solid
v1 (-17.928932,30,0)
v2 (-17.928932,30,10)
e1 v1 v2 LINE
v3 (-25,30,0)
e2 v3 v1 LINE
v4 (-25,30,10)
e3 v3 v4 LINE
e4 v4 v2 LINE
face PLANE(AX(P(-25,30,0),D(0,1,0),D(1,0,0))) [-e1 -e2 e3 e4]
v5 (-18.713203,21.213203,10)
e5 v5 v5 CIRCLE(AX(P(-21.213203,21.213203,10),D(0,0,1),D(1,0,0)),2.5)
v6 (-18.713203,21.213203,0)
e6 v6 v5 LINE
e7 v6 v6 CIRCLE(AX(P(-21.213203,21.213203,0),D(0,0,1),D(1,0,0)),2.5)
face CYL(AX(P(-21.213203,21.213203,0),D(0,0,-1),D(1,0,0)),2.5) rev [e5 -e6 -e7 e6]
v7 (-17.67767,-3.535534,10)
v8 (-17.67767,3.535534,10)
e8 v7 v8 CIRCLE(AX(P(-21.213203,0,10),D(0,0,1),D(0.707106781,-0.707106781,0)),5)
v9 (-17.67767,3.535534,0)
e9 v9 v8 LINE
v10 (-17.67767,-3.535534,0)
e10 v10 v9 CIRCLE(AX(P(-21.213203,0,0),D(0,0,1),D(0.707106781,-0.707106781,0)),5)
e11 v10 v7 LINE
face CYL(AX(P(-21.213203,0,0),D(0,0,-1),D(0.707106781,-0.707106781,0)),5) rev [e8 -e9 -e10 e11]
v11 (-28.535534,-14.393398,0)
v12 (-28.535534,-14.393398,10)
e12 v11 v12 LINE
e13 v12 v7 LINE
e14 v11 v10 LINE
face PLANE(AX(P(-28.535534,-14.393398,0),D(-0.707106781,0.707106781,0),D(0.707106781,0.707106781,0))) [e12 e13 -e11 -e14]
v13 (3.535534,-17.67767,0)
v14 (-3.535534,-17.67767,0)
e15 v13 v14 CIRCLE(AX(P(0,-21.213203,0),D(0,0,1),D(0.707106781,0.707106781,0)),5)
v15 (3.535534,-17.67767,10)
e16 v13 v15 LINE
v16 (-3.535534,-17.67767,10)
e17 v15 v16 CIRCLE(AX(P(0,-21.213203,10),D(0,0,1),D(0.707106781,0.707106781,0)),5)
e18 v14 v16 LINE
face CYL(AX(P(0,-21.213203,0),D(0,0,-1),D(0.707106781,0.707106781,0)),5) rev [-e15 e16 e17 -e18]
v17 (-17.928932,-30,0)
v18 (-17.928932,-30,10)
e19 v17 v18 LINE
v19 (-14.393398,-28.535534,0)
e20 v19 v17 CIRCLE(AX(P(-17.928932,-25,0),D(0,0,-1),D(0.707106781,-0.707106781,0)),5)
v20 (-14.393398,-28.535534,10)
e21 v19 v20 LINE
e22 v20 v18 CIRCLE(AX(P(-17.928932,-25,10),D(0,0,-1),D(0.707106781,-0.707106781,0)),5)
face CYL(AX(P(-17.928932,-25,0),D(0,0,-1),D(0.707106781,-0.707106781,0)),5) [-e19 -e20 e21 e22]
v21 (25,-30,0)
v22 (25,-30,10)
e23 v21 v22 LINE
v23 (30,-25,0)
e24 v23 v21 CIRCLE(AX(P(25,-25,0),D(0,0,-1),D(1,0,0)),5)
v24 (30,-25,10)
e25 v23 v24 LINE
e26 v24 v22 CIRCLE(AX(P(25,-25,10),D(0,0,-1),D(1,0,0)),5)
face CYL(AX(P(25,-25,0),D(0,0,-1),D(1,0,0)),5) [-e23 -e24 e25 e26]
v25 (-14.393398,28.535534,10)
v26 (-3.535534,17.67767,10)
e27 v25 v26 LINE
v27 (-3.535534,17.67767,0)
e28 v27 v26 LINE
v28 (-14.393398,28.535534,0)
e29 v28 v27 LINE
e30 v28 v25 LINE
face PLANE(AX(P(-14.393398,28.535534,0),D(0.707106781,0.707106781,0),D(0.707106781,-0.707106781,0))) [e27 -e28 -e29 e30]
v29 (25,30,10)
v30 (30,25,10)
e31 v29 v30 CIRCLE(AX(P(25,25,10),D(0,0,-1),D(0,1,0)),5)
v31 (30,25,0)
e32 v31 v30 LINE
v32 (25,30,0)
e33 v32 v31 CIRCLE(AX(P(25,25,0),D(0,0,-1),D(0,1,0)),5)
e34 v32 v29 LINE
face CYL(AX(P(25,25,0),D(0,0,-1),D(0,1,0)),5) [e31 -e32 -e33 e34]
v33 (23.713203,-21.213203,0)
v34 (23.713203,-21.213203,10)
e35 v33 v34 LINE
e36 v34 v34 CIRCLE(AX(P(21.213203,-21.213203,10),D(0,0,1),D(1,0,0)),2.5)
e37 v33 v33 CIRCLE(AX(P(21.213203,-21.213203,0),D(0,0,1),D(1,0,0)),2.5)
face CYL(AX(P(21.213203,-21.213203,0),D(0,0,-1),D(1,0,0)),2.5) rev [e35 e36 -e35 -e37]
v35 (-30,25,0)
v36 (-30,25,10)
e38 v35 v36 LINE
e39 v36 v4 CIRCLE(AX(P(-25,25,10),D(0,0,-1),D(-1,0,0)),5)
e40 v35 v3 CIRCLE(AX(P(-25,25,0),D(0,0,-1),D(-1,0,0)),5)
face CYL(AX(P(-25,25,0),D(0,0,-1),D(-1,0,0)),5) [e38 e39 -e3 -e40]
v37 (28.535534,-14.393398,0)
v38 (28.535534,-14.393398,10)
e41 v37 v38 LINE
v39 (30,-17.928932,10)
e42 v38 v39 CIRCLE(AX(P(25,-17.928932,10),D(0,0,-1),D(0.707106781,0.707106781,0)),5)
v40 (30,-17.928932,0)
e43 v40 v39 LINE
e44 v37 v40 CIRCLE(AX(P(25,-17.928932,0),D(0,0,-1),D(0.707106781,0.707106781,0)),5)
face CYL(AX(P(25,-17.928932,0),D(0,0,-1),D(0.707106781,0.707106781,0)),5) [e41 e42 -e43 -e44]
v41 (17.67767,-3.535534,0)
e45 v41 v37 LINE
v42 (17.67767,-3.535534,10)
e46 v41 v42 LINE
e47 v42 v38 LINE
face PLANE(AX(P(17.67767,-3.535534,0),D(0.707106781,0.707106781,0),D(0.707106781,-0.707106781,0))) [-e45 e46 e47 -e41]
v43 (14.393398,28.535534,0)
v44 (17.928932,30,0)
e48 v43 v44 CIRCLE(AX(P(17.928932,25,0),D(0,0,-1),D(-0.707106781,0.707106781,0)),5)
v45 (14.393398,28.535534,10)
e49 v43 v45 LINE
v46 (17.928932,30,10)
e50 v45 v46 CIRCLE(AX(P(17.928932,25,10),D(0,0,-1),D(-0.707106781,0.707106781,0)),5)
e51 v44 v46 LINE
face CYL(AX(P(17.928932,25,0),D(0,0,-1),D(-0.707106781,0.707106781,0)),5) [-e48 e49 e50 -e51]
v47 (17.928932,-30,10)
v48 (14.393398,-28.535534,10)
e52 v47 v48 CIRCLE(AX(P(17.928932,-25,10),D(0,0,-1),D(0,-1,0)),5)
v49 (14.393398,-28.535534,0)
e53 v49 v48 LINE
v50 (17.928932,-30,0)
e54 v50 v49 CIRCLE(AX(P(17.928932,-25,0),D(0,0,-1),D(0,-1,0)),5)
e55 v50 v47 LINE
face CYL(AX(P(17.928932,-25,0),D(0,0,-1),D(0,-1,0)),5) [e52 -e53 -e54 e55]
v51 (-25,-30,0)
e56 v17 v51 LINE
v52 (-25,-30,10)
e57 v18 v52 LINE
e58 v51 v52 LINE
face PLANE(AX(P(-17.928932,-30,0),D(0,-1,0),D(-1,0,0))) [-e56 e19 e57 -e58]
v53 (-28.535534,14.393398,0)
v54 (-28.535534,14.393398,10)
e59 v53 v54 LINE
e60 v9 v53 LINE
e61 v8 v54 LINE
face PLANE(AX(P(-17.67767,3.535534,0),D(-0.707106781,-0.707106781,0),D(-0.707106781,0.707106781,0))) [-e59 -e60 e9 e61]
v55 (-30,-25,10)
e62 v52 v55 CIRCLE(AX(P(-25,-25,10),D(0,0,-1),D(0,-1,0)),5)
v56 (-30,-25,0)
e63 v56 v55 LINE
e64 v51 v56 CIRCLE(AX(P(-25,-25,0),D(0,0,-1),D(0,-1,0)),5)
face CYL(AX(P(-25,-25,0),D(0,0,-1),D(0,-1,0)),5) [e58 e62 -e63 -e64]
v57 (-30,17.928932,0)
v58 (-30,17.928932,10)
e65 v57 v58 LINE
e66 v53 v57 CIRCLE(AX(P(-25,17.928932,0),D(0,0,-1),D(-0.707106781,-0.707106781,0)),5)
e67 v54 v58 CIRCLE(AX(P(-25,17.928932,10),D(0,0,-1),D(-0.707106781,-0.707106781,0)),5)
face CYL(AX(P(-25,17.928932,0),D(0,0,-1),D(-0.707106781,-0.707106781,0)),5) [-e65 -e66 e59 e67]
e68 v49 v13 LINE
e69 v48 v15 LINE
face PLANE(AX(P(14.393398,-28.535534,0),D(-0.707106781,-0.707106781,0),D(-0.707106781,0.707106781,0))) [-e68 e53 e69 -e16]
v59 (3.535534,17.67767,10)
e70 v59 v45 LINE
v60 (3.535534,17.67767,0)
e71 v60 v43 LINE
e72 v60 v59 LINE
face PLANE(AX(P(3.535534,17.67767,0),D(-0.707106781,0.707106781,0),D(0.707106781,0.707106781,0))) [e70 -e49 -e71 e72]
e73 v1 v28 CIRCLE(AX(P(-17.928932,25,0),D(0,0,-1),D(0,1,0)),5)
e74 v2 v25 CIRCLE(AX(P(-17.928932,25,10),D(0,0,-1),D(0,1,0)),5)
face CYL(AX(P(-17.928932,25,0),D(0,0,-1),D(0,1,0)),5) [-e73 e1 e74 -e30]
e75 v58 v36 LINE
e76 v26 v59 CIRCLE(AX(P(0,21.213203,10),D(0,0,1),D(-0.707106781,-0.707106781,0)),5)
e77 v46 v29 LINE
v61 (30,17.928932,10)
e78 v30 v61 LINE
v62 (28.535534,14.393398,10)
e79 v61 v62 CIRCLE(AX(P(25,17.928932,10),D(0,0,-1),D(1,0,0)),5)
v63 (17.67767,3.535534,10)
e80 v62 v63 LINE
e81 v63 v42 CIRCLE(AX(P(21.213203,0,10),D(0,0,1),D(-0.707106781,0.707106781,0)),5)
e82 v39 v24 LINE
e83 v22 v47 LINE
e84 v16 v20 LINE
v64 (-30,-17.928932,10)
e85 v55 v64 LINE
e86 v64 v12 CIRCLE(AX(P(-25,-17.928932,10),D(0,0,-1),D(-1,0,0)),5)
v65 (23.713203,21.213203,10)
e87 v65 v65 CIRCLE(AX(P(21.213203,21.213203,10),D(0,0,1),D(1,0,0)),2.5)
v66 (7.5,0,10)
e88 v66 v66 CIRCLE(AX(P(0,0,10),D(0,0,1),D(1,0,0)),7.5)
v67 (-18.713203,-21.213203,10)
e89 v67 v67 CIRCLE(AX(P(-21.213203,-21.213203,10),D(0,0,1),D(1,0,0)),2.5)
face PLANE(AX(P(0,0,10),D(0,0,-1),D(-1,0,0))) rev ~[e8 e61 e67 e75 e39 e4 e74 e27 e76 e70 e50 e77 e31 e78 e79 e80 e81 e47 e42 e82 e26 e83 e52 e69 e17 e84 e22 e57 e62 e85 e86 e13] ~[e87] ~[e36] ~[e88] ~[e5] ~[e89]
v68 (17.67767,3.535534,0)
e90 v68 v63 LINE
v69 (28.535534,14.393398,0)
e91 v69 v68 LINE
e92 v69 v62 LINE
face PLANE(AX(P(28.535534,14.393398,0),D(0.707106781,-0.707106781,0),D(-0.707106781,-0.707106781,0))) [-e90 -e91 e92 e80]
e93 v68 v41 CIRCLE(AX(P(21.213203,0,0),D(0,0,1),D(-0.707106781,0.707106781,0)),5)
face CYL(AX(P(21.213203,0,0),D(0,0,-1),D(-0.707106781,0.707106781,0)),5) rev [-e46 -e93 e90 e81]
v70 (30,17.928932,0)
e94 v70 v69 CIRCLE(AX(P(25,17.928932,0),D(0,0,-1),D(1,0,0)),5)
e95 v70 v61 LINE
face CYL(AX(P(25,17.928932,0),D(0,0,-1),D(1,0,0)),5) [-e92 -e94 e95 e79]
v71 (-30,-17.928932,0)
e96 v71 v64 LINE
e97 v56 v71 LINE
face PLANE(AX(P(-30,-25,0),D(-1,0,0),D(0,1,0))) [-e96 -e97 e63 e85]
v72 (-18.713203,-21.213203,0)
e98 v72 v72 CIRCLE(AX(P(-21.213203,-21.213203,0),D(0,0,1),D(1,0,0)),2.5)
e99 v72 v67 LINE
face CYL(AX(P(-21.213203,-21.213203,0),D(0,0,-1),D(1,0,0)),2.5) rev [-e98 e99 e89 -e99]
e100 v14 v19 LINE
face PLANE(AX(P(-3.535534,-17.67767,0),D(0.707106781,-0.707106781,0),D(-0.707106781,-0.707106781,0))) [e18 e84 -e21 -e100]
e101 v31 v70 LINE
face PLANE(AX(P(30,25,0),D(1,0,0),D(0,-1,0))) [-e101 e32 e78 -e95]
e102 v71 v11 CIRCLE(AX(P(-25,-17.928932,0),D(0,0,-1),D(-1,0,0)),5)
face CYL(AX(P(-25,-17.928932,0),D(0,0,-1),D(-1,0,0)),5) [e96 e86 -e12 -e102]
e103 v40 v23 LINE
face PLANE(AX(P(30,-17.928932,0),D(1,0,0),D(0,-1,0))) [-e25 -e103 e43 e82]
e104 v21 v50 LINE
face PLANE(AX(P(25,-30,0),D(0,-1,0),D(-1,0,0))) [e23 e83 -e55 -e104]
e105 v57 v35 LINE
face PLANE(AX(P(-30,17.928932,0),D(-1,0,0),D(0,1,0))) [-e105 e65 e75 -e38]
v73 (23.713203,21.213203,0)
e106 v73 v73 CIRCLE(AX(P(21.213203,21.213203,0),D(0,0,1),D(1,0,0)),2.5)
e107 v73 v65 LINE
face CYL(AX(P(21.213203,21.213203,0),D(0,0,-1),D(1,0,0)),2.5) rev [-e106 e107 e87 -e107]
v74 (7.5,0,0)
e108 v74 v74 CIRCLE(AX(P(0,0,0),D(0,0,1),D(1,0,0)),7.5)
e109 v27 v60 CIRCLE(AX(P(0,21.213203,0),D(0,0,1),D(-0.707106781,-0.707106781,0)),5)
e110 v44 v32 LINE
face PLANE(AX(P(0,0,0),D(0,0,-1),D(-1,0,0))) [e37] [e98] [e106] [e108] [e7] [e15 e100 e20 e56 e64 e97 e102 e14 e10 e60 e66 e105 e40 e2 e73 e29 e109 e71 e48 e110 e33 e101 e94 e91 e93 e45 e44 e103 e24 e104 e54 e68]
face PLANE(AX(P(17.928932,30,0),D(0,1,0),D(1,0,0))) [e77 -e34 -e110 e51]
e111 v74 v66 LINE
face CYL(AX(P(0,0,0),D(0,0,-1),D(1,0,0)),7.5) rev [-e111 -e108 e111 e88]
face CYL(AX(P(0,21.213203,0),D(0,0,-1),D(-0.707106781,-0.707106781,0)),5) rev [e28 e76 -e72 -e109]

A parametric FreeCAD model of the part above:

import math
import FreeCAD as App
import Part
import Sketcher

V = App.Vector

doc = App.newDocument("Part")
body = doc.addObject("PartDesign::Body", "Body")

sketch1 = body.newObject("Sketcher::SketchObject", "Sketch")
sketch1.AttachmentSupport = (doc.getObject("XY_Plane"), [""])
sketch1.MapMode = "FlatFace"
sketch1.addGeometry([
    Part.LineSegment(V(25, 30, 0), V(17.9, 30, 0)),
    Part.ArcOfCircle(Part.Circle(V(17.9, 25, 0), V(0, 0, 1), 5), math.radians(90), math.radians(135)),
    Part.LineSegment(V(14.4, 28.5, 0), V(3.5, 17.7, 0)),
    Part.ArcOfCircle(Part.Circle(V(0, 21.2, 0), V(0, 0, 1), 5), math.radians(-135), math.radians(-45)),
    Part.LineSegment(V(-3.5, 17.7, 0), V(-14.4, 28.5, 0)),
    Part.ArcOfCircle(Part.Circle(V(-17.9, 25, 0), V(0, 0, 1), 5), math.radians(45), math.radians(90)),
    Part.LineSegment(V(-17.9, 30, 0), V(-25, 30, 0)),
    Part.ArcOfCircle(Part.Circle(V(-25, 25, 0), V(0, 0, 1), 5), math.radians(90), math.radians(180)),
    Part.LineSegment(V(-30, 25, 0), V(-30, 17.9, 0)),
    Part.ArcOfCircle(Part.Circle(V(-25, 17.9, 0), V(0, 0, 1), 5), math.radians(180), math.radians(225)),
    Part.LineSegment(V(-28.5, 14.4, 0), V(-17.7, 3.5, 0)),
    Part.ArcOfCircle(Part.Circle(V(-21.2, 0, 0), V(0, 0, 1), 5), math.radians(-45), math.radians(45)),
    Part.LineSegment(V(-17.7, -3.5, 0), V(-28.5, -14.4, 0)),
    Part.ArcOfCircle(Part.Circle(V(-25, -17.9, 0), V(0, 0, 1), 5), math.radians(135), math.radians(180)),
    Part.LineSegment(V(-30, -17.9, 0), V(-30, -25, 0)),
    Part.ArcOfCircle(Part.Circle(V(-25, -25, 0), V(0, 0, 1), 5), math.radians(180), math.radians(270)),
    Part.LineSegment(V(-25, -30, 0), V(-17.9, -30, 0)),
    Part.ArcOfCircle(Part.Circle(V(-17.9, -25, 0), V(0, 0, 1), 5), math.radians(-90), math.radians(-45)),
    Part.LineSegment(V(-14.4, -28.5, 0), V(-3.5, -17.7, 0)),
    Part.ArcOfCircle(Part.Circle(V(0, -21.2, 0), V(0, 0, 1), 5), math.radians(45), math.radians(135)),
    Part.LineSegment(V(3.5, -17.7, 0), V(14.4, -28.5, 0)),
    Part.ArcOfCircle(Part.Circle(V(17.9, -25, 0), V(0, 0, 1), 5), math.radians(-135), math.radians(-90)),
    Part.LineSegment(V(17.9, -30, 0), V(25, -30, 0)),
    Part.ArcOfCircle(Part.Circle(V(25, -25, 0), V(0, 0, 1), 5), math.radians(-90), math.radians(0)),
    Part.LineSegment(V(30, -25, 0), V(30, -17.9, 0)),
    Part.ArcOfCircle(Part.Circle(V(25, -17.9, 0), V(0, 0, 1), 5), math.radians(0), math.radians(45)),
    Part.LineSegment(V(28.5, -14.4, 0), V(17.7, -3.5, 0)),
    Part.ArcOfCircle(Part.Circle(V(21.2, 0, 0), V(0, 0, 1), 5), math.radians(135), math.radians(225)),
    Part.LineSegment(V(17.7, 3.5, 0), V(28.5, 14.4, 0)),
    Part.ArcOfCircle(Part.Circle(V(25, 17.9, 0), V(0, 0, 1), 5), math.radians(-45), math.radians(0)),
    Part.LineSegment(V(30, 17.9, 0), V(30, 25, 0)),
    Part.ArcOfCircle(Part.Circle(V(25, 25, 0), V(0, 0, 1), 5), math.radians(0), math.radians(90)),
    Part.Circle(V(21.2, -21.2, 0), V(0, 0, 1), 2.5),
    Part.Circle(V(-21.2, -21.2, 0), V(0, 0, 1), 2.5),
    Part.Circle(V(21.2, 21.2, 0), V(0, 0, 1), 2.5),
    Part.Circle(V(0, 0, 0), V(0, 0, 1), 7.5),
    Part.Circle(V(-21.2, 21.2, 0), V(0, 0, 1), 2.5),
], False)
sketch1.addConstraint([
    Sketcher.Constraint("Tangent", 0, 2, 1, 1),
    Sketcher.Constraint("Tangent", 1, 2, 2, 1),
    Sketcher.Constraint("Tangent", 2, 2, 3, 2),
    Sketcher.Constraint("Tangent", 3, 1, 4, 1),
    Sketcher.Constraint("Tangent", 4, 2, 5, 1),
    Sketcher.Constraint("Tangent", 5, 2, 6, 1),
    Sketcher.Constraint("Tangent", 6, 2, 7, 1),
    Sketcher.Constraint("Tangent", 7, 2, 8, 1),
    Sketcher.Constraint("Tangent", 8, 2, 9, 1),
    Sketcher.Constraint("Tangent", 9, 2, 10, 1),
    Sketcher.Constraint("Tangent", 10, 2, 11, 2),
    Sketcher.Constraint("Tangent", 11, 1, 12, 1),
    Sketcher.Constraint("Tangent", 12, 2, 13, 1),
    Sketcher.Constraint("Tangent", 13, 2, 14, 1),
    Sketcher.Constraint("Tangent", 14, 2, 15, 1),
    Sketcher.Constraint("Tangent", 15, 2, 16, 1),
    Sketcher.Constraint("Tangent", 16, 2, 17, 1),
    Sketcher.Constraint("Tangent", 17, 2, 18, 1),
    Sketcher.Constraint("Tangent", 18, 2, 19, 2),
    Sketcher.Constraint("Tangent", 19, 1, 20, 1),
    Sketcher.Constraint("Tangent", 20, 2, 21, 1),
    Sketcher.Constraint("Tangent", 21, 2, 22, 1),
    Sketcher.Constraint("Tangent", 22, 2, 23, 1),
    Sketcher.Constraint("Tangent", 23, 2, 24, 1),
    Sketcher.Constraint("Tangent", 24, 2, 25, 1),
    Sketcher.Constraint("Tangent", 25, 2, 26, 1),
    Sketcher.Constraint("Tangent", 26, 2, 27, 2),
    Sketcher.Constraint("Tangent", 27, 1, 28, 1),
    Sketcher.Constraint("Tangent", 28, 2, 29, 1),
    Sketcher.Constraint("Tangent", 29, 2, 30, 1),
    Sketcher.Constraint("Tangent", 30, 2, 31, 1),
    Sketcher.Constraint("Tangent", 31, 2, 0, 1),
    Sketcher.Constraint("Horizontal", 0),
    Sketcher.Constraint("Horizontal", 6),
    Sketcher.Constraint("Vertical", 8),
    Sketcher.Constraint("Vertical", 14),
    Sketcher.Constraint("Horizontal", 16),
    Sketcher.Constraint("Horizontal", 22),
    Sketcher.Constraint("Vertical", 24),
    Sketcher.Constraint("Vertical", 30),
    Sketcher.Constraint("Coincident", 35, 3, -1, 1),
    Sketcher.Constraint("Equal", 1, 3),
    Sketcher.Constraint("Equal", 3, 5),
    Sketcher.Constraint("Equal", 5, 7),
    Sketcher.Constraint("Equal", 7, 9),
    Sketcher.Constraint("Equal", 9, 11),
    Sketcher.Constraint("Equal", 11, 13),
    Sketcher.Constraint("Equal", 13, 15),
    Sketcher.Constraint("Equal", 15, 17),
    Sketcher.Constraint("Equal", 17, 19),
    Sketcher.Constraint("Equal", 19, 21),
    Sketcher.Constraint("Equal", 21, 23),
    Sketcher.Constraint("Equal", 23, 25),
    Sketcher.Constraint("Equal", 25, 27),
    Sketcher.Constraint("Equal", 27, 29),
    Sketcher.Constraint("Equal", 29, 31),
    Sketcher.Constraint("Equal", 32, 33),
    Sketcher.Constraint("Equal", 33, 34),
    Sketcher.Constraint("Equal", 34, 36),
    Sketcher.Constraint("Symmetric", 1, 3, 17, 3, -1, 1),
    Sketcher.Constraint("Symmetric", 3, 3, 19, 3, -1, 1),
    Sketcher.Constraint("Symmetric", 5, 3, 21, 3, -1, 1),
    Sketcher.Constraint("Symmetric", 9, 3, 25, 3, -1, 1),
    Sketcher.Constraint("Symmetric", 11, 3, 27, 3, -1, 1),
    Sketcher.Constraint("Symmetric", 13, 3, 29, 3, -1, 1),
    Sketcher.Constraint("Symmetric", 33, 3, 34, 3, -1, 1),
    Sketcher.Constraint("Symmetric", 32, 3, 36, 3, -1, 1),
    Sketcher.Constraint("Symmetric", 1, 3, 5, 3, -2),
    Sketcher.Constraint("Symmetric", 13, 3, 25, 3, -2),
    Sketcher.Constraint("Symmetric", 32, 3, 33, 3, -2),
    Sketcher.Constraint("PointOnObject", 3, 3, -2),
    Sketcher.Constraint("PointOnObject", 11, 3, -1),
    Sketcher.Constraint("Perpendicular", 2, 4),
    Sketcher.Constraint("Parallel", 4, 10),
    Sketcher.Constraint("Horizontal", 19, 3, 32, 3),
    Sketcher.Constraint("Vertical", 27, 3, 32, 3),
    Sketcher.Constraint("Equal", 22, 8),
    Sketcher.Constraint("Equal", 4, 10),
    Sketcher.Constraint("Diameter", 32, 5.0),
    Sketcher.Constraint("Diameter", 35, 15.0),
    Sketcher.Constraint("Radius", 1, 5.0),
    Sketcher.Constraint("DistanceY", -1, 1, 1, 3, 25.0),
    Sketcher.Constraint("DistanceX", -1, 1, 1, 2, 14.393398),
])
pad1 = body.newObject("PartDesign::Pad", "Pad")
pad1.Profile = sketch1
pad1.Length = 10

doc.recompute()
